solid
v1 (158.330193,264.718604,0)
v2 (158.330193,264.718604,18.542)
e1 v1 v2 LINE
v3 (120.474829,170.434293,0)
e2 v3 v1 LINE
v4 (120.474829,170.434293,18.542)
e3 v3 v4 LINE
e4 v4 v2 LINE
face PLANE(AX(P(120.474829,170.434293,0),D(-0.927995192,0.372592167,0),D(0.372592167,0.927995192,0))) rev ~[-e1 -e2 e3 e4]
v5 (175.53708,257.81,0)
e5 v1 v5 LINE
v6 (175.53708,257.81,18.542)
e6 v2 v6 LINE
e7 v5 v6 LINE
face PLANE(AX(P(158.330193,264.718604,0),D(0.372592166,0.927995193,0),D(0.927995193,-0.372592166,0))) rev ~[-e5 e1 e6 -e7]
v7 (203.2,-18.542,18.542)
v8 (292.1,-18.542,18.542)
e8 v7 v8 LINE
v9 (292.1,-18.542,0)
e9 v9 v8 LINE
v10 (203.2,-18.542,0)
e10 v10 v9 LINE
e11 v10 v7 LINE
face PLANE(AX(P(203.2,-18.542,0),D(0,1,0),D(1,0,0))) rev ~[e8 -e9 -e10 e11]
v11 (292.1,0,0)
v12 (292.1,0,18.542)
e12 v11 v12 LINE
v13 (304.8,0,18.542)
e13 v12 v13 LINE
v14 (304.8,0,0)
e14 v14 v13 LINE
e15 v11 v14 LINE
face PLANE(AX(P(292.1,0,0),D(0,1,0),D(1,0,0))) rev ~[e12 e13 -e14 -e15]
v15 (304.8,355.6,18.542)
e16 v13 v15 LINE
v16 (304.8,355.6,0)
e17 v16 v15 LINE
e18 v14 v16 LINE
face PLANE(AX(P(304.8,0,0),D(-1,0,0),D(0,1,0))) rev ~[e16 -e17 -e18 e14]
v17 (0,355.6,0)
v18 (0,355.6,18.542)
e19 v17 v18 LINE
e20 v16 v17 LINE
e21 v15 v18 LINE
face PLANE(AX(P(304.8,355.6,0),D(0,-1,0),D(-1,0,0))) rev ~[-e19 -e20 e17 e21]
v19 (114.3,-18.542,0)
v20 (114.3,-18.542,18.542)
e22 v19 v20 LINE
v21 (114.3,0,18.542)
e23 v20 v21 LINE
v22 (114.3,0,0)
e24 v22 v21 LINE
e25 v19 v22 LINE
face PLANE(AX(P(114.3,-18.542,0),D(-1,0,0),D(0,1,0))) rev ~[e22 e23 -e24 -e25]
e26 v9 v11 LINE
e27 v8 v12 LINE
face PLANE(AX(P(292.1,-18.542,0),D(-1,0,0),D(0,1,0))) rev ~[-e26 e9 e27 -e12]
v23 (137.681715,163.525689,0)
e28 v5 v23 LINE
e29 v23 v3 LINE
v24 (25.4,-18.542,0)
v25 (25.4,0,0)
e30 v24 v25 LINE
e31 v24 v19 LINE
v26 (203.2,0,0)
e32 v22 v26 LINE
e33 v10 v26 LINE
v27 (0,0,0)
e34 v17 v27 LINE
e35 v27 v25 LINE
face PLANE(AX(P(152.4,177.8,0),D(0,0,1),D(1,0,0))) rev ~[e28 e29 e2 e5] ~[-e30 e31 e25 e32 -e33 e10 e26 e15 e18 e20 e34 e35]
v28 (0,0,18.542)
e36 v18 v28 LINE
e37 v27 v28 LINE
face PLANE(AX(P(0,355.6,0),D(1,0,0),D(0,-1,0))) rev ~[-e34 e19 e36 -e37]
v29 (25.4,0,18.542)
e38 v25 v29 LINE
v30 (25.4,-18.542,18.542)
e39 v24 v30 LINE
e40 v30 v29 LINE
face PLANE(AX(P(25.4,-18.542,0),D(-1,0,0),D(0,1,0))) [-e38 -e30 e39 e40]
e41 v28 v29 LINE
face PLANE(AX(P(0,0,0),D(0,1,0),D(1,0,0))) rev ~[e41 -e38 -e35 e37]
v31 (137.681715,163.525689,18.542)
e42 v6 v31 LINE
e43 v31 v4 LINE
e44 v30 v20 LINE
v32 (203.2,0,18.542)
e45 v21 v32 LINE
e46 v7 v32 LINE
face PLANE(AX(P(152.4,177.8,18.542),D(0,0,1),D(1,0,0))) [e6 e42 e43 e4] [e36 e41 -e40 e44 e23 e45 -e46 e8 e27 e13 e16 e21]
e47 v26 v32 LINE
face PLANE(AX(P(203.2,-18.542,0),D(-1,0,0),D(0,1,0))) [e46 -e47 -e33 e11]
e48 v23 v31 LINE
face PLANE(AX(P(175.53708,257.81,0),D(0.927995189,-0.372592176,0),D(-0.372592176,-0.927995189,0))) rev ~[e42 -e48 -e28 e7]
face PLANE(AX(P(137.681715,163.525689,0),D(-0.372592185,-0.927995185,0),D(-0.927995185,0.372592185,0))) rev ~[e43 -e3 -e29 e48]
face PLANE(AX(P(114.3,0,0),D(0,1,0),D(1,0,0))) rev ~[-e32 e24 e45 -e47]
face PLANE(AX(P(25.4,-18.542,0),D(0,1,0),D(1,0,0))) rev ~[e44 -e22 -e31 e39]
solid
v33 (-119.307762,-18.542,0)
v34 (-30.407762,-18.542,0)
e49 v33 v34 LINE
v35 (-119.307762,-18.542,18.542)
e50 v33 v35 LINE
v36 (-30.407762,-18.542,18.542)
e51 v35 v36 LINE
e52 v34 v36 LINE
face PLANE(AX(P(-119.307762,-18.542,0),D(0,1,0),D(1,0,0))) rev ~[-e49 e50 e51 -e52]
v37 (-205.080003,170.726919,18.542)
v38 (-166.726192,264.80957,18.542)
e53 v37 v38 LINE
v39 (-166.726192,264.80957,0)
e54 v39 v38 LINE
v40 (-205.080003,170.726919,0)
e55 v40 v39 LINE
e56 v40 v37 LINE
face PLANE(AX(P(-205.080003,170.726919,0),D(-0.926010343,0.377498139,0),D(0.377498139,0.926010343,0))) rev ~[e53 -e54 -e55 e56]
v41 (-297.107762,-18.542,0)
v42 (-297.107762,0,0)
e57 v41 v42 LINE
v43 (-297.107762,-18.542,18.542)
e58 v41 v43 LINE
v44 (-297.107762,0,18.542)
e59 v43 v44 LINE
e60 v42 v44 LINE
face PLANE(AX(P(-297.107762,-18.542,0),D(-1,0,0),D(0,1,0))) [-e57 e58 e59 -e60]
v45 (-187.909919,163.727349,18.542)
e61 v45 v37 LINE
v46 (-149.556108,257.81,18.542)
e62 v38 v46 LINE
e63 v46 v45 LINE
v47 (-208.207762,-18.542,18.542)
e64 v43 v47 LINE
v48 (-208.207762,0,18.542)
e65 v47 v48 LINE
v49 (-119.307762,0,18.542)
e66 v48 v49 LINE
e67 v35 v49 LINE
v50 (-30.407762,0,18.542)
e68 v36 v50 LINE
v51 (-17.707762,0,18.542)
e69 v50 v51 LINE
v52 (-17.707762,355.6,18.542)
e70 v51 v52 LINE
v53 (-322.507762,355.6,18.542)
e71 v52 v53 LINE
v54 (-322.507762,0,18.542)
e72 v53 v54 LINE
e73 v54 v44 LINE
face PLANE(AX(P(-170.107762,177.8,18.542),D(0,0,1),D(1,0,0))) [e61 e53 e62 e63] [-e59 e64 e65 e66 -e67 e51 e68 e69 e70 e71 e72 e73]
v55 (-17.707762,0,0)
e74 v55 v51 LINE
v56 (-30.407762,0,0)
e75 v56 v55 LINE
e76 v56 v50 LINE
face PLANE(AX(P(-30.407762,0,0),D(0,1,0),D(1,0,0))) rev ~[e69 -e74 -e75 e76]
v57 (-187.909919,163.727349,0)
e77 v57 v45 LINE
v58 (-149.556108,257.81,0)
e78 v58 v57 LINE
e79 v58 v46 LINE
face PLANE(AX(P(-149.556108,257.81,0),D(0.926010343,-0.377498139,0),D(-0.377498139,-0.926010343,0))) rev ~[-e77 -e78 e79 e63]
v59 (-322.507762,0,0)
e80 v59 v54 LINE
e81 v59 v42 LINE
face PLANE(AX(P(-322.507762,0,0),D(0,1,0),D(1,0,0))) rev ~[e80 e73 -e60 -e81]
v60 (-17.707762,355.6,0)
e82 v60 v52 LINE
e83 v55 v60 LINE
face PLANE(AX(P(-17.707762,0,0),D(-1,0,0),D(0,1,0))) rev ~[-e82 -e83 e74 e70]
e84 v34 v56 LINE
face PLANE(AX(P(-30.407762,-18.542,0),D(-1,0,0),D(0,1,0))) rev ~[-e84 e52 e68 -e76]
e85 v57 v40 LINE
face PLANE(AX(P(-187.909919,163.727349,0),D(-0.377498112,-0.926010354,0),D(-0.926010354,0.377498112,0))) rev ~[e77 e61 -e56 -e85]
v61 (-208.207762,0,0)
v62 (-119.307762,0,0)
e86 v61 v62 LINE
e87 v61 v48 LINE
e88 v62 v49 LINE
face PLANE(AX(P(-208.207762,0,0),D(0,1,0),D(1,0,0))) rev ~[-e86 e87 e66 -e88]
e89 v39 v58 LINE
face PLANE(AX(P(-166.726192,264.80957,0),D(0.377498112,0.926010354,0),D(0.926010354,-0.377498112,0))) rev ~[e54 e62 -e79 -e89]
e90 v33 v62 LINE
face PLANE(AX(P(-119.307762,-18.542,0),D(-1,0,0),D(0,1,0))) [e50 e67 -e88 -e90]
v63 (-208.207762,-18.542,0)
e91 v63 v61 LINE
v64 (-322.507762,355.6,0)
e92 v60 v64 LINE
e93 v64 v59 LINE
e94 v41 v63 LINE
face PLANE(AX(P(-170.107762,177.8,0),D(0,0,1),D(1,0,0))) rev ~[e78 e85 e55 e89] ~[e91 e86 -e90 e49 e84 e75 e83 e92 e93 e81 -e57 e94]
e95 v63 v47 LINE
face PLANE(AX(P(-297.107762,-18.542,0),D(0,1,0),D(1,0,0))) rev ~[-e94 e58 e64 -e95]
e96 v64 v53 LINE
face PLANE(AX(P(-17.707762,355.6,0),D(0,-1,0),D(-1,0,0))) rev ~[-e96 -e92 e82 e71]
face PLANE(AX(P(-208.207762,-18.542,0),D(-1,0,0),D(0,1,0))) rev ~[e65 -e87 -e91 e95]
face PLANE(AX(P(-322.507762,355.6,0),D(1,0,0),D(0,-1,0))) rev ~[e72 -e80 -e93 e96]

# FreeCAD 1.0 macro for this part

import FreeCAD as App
import Part
import Sketcher
Q = App.Units.Quantity

doc = App.newDocument("Part")
params = doc.addObject("Spreadsheet::Sheet", "Params")
for row, (alias, value) in enumerate([
    ("sketch1_width", "1 in"),
    ("sketch1_width2", "12 in"),
    ("sketch1_height", "14 in"),
    ("sketch1_length", "4 in"),
    ("sketch1_width3", "3.5 in"),
    ("pad1_length", "0.73 in"),
    ("sketch2_width", "1 in"),
    ("sketch2_width2", "12 in"),
    ("sketch2_height", "14 in"),
    ("sketch2_length", "4 in"),
    ("sketch2_width3", "3.5 in"),
    ("pad2_length", "0.73 in"),
], start=1):
    params.set(f"A{row}", alias)
    params.set(f"B{row}", "=" + value)
    params.setAlias(f"B{row}", alias)

body = doc.addObject("PartDesign::Body", "Body")

# Sketch on XY plane
sketch1 = doc.addObject("Sketcher::SketchObject", "Sketch")
body.addObject(sketch1)
sketch1.AttachmentSupport = (doc.XY_Plane, [""])
sketch1.MapMode = "FlatFace"
sketch1.addGeometry([
    Part.LineSegment(App.Vector(-322.507762, 355.6, 0), App.Vector(-322.507762, 0, 0)),  # 0
    Part.LineSegment(App.Vector(-322.507762, 0, 0), App.Vector(-297.107762, 0, 0)),  # 1
    Part.LineSegment(App.Vector(-297.107762, 0, 0), App.Vector(-297.107762, -18.542, 0)),  # 2
    Part.LineSegment(App.Vector(-297.107762, -18.542, 0), App.Vector(-208.207762, -18.542, 0)),  # 3
    Part.LineSegment(App.Vector(-208.207762, -18.542, 0), App.Vector(-208.207762, 0, 0)),  # 4
    Part.LineSegment(App.Vector(-208.207762, 0, 0), App.Vector(-119.307762, 0, 0)),  # 5
    Part.LineSegment(App.Vector(-119.307762, 0, 0), App.Vector(-119.307762, -18.542, 0)),  # 6
    Part.LineSegment(App.Vector(-119.307762, -18.542, 0), App.Vector(-30.407762, -18.542, 0)),  # 7
    Part.LineSegment(App.Vector(-30.407762, -18.542, 0), App.Vector(-30.407762, 0, 0)),  # 8
    Part.LineSegment(App.Vector(-30.407762, 0, 0), App.Vector(-17.707762, 0, 0)),  # 9
    Part.LineSegment(App.Vector(-17.707762, 0, 0), App.Vector(-17.707762, 355.6, 0)),  # 10
    Part.LineSegment(App.Vector(-17.707762, 355.6, 0), App.Vector(-322.507762, 355.6, 0)),  # 11
    Part.LineSegment(App.Vector(-149.556108, 257.81, 0), App.Vector(-187.909919, 163.727349, 0)),  # 12
    Part.LineSegment(App.Vector(-187.909919, 163.727349, 0), App.Vector(-205.080003, 170.726919, 0)),  # 13
    Part.LineSegment(App.Vector(-205.080003, 170.726919, 0), App.Vector(-166.726192, 264.80957, 0)),  # 14
    Part.LineSegment(App.Vector(-166.726192, 264.80957, 0), App.Vector(-149.556108, 257.81, 0)),  # 15
], False)
sketch1.addConstraint([
    Sketcher.Constraint("Coincident", 0, 2, 1, 1),
    Sketcher.Constraint("Coincident", 1, 2, 2, 1),
    Sketcher.Constraint("Coincident", 2, 2, 3, 1),
    Sketcher.Constraint("Coincident", 3, 2, 4, 1),
    Sketcher.Constraint("Coincident", 4, 2, 5, 1),
    Sketcher.Constraint("Coincident", 5, 2, 6, 1),
    Sketcher.Constraint("Coincident", 6, 2, 7, 1),
    Sketcher.Constraint("Coincident", 7, 2, 8, 1),
    Sketcher.Constraint("Coincident", 8, 2, 9, 1),
    Sketcher.Constraint("Coincident", 9, 2, 10, 1),
    Sketcher.Constraint("Coincident", 10, 2, 11, 1),
    Sketcher.Constraint("Coincident", 11, 2, 0, 1),
    Sketcher.Constraint("Coincident", 12, 2, 13, 1),
    Sketcher.Constraint("Coincident", 13, 2, 14, 1),
    Sketcher.Constraint("Coincident", 14, 2, 15, 1),
    Sketcher.Constraint("Coincident", 15, 2, 12, 1),
    Sketcher.Constraint("Vertical", 0),
    Sketcher.Constraint("Horizontal", 1),
    Sketcher.Constraint("Vertical", 2),
    Sketcher.Constraint("Horizontal", 3),
    Sketcher.Constraint("Vertical", 4),
    Sketcher.Constraint("Horizontal", 5),
    Sketcher.Constraint("Vertical", 6),
    Sketcher.Constraint("Horizontal", 7),
    Sketcher.Constraint("Vertical", 8),
    Sketcher.Constraint("Horizontal", 9),
    Sketcher.Constraint("Vertical", 10),
    Sketcher.Constraint("Horizontal", 11),
    Sketcher.Constraint("PointOnObject", 0, 2, -1),
    Sketcher.Constraint("PointOnObject", 4, 2, -1),
    Sketcher.Constraint("PointOnObject", 8, 2, -1),
    Sketcher.Constraint("Perpendicular", 12, 13),
    Sketcher.Constraint("Perpendicular", 13, 14),
    Sketcher.Constraint("Perpendicular", 14, 15),
    Sketcher.Constraint("Horizontal", 3, 2, 6, 2),
    Sketcher.Constraint("Equal", 3, 5),
    Sketcher.Constraint("Equal", 5, 7),
    Sketcher.Constraint("DistanceX", 1, 1, 1, 2, Q("1 in")),
    Sketcher.Constraint("DistanceX", 11, 2, 11, 1, Q("12 in")),
    Sketcher.Constraint("DistanceY", 0, 2, 0, 1, Q("14 in")),
    Sketcher.Constraint("Distance", 12, Q("4 in")),
    Sketcher.Constraint("DistanceX", 3, 1, 3, 2, Q("3.5 in")),
    Sketcher.Constraint("DistanceY", 2, 2, 2, 1, Q("0.73 in")),
    Sketcher.Constraint("Distance", 13, Q("0.73 in")),
    Sketcher.Constraint("DistanceY", -1, 1, 15, 2, Q("10.15 in")),
    Sketcher.Constraint("DistanceX", 0, 2, -1, 1, 322.507762),
    Sketcher.Constraint("DistanceX", 12, 2, -1, 1, 187.909919),
    Sketcher.Constraint("DistanceY", -1, 1, 12, 2, 163.727349),
])
sketch1.setExpression("Constraints[37]", "Params.sketch1_width")
sketch1.setExpression("Constraints[38]", "Params.sketch1_width2")
sketch1.setExpression("Constraints[39]", "Params.sketch1_height")
sketch1.setExpression("Constraints[40]", "Params.sketch1_length")
sketch1.setExpression("Constraints[41]", "Params.sketch1_width3")
pad1 = doc.addObject("PartDesign::Pad", "Pad")
body.addObject(pad1)
pad1.Profile = sketch1
pad1.setExpression("Length", "Params.pad1_length")
body2 = doc.addObject("PartDesign::Body", "Body001")

# Sketch on XY plane
sketch2 = doc.addObject("Sketcher::SketchObject", "Sketch001")
body2.addObject(sketch2)
sketch2.AttachmentSupport = (doc.getObject("XY_Plane001"), [""])
sketch2.MapMode = "FlatFace"
sketch2.addGeometry([
    Part.LineSegment(App.Vector(0, 355.6, 0), App.Vector(0, 0, 0)),  # 0
    Part.LineSegment(App.Vector(0, 0, 0), App.Vector(25.4, 0, 0)),  # 1
    Part.LineSegment(App.Vector(25.4, 0, 0), App.Vector(25.4, -18.542, 0)),  # 2
    Part.LineSegment(App.Vector(25.4, -18.542, 0), App.Vector(114.3, -18.542, 0)),  # 3
    Part.LineSegment(App.Vector(114.3, -18.542, 0), App.Vector(114.3, 0, 0)),  # 4
    Part.LineSegment(App.Vector(114.3, 0, 0), App.Vector(203.2, 0, 0)),  # 5
    Part.LineSegment(App.Vector(203.2, 0, 0), App.Vector(203.2, -18.542, 0)),  # 6
    Part.LineSegment(App.Vector(203.2, -18.542, 0), App.Vector(292.1, -18.542, 0)),  # 7
    Part.LineSegment(App.Vector(292.1, -18.542, 0), App.Vector(292.1, 0, 0)),  # 8
    Part.LineSegment(App.Vector(292.1, 0, 0), App.Vector(304.8, 0, 0)),  # 9
    Part.LineSegment(App.Vector(304.8, 0, 0), App.Vector(304.8, 355.6, 0)),  # 10
    Part.LineSegment(App.Vector(304.8, 355.6, 0), App.Vector(0, 355.6, 0)),  # 11
    Part.LineSegment(App.Vector(175.53708, 257.81, 0), App.Vector(137.681715, 163.525689, 0)),  # 12
    Part.LineSegment(App.Vector(137.681715, 163.525689, 0), App.Vector(120.474829, 170.434293, 0)),  # 13
    Part.LineSegment(App.Vector(120.474829, 170.434293, 0), App.Vector(158.330193, 264.718604, 0)),  # 14
    Part.LineSegment(App.Vector(158.330193, 264.718604, 0), App.Vector(175.53708, 257.81, 0)),  # 15
], False)
sketch2.addConstraint([
    Sketcher.Constraint("Coincident", 0, 2, 1, 1),
    Sketcher.Constraint("Coincident", 1, 2, 2, 1),
    Sketcher.Constraint("Coincident", 2, 2, 3, 1),
    Sketcher.Constraint("Coincident", 3, 2, 4, 1),
    Sketcher.Constraint("Coincident", 4, 2, 5, 1),
    Sketcher.Constraint("Coincident", 5, 2, 6, 1),
    Sketcher.Constraint("Coincident", 6, 2, 7, 1),
    Sketcher.Constraint("Coincident", 7, 2, 8, 1),
    Sketcher.Constraint("Coincident", 8, 2, 9, 1),
    Sketcher.Constraint("Coincident", 9, 2, 10, 1),
    Sketcher.Constraint("Coincident", 10, 2, 11, 1),
    Sketcher.Constraint("Coincident", 11, 2, 0, 1),
    Sketcher.Constraint("Coincident", 12, 2, 13, 1),
    Sketcher.Constraint("Coincident", 13, 2, 14, 1),
    Sketcher.Constraint("Coincident", 14, 2, 15, 1),
    Sketcher.Constraint("Coincident", 15, 2, 12, 1),
    Sketcher.Constraint("Vertical", 0),
    Sketcher.Constraint("Horizontal", 1),
    Sketcher.Constraint("Vertical", 2),
    Sketcher.Constraint("Horizontal", 3),
    Sketcher.Constraint("Vertical", 4),
    Sketcher.Constraint("Horizontal", 5),
    Sketcher.Constraint("Vertical", 6),
    Sketcher.Constraint("Horizontal", 7),
    Sketcher.Constraint("Vertical", 8),
    Sketcher.Constraint("Horizontal", 9),
    Sketcher.Constraint("Vertical", 10),
    Sketcher.Constraint("Horizontal", 11),
    Sketcher.Constraint("Coincident", 0, 2, -1, 1),
    Sketcher.Constraint("PointOnObject", 4, 2, -1),
    Sketcher.Constraint("PointOnObject", 8, 2, -1),
    Sketcher.Constraint("Perpendicular", 12, 13),
    Sketcher.Constraint("Perpendicular", 13, 14),
    Sketcher.Constraint("Perpendicular", 14, 15),
    Sketcher.Constraint("Horizontal", 3, 2, 6, 2),
    Sketcher.Constraint("Equal", 3, 5),
    Sketcher.Constraint("Equal", 5, 7),
    Sketcher.Constraint("DistanceX", 1, 1, 1, 2, Q("1 in")),
    Sketcher.Constraint("DistanceX", 11, 2, 11, 1, Q("12 in")),
    Sketcher.Constraint("DistanceY", 0, 2, 0, 1, Q("14 in")),
    Sketcher.Constraint("Distance", 12, Q("4 in")),
    Sketcher.Constraint("DistanceX", 3, 1, 3, 2, Q("3.5 in")),
    Sketcher.Constraint("DistanceY", 2, 2, 2, 1, Q("0.73 in")),
    Sketcher.Constraint("Distance", 13, Q("0.73 in")),
    Sketcher.Constraint("DistanceY", -1, 1, 15, 2, Q("10.15 in")),
    Sketcher.Constraint("DistanceY", -1, 1, 12, 2, 163.525689),
    Sketcher.Constraint("DistanceX", -1, 1, 13, 2, 120.474829),
])
sketch2.setExpression("Constraints[37]", "Params.sketch2_width")
sketch2.setExpression("Constraints[38]", "Params.sketch2_width2")
sketch2.setExpression("Constraints[39]", "Params.sketch2_height")
sketch2.setExpression("Constraints[40]", "Params.sketch2_length")
sketch2.setExpression("Constraints[41]", "Params.sketch2_width3")
pad2 = doc.addObject("PartDesign::Pad", "Pad001")
body2.addObject(pad2)
pad2.Profile = sketch2
pad2.setExpression("Length", "Params.pad2_length")

doc.recompute()
